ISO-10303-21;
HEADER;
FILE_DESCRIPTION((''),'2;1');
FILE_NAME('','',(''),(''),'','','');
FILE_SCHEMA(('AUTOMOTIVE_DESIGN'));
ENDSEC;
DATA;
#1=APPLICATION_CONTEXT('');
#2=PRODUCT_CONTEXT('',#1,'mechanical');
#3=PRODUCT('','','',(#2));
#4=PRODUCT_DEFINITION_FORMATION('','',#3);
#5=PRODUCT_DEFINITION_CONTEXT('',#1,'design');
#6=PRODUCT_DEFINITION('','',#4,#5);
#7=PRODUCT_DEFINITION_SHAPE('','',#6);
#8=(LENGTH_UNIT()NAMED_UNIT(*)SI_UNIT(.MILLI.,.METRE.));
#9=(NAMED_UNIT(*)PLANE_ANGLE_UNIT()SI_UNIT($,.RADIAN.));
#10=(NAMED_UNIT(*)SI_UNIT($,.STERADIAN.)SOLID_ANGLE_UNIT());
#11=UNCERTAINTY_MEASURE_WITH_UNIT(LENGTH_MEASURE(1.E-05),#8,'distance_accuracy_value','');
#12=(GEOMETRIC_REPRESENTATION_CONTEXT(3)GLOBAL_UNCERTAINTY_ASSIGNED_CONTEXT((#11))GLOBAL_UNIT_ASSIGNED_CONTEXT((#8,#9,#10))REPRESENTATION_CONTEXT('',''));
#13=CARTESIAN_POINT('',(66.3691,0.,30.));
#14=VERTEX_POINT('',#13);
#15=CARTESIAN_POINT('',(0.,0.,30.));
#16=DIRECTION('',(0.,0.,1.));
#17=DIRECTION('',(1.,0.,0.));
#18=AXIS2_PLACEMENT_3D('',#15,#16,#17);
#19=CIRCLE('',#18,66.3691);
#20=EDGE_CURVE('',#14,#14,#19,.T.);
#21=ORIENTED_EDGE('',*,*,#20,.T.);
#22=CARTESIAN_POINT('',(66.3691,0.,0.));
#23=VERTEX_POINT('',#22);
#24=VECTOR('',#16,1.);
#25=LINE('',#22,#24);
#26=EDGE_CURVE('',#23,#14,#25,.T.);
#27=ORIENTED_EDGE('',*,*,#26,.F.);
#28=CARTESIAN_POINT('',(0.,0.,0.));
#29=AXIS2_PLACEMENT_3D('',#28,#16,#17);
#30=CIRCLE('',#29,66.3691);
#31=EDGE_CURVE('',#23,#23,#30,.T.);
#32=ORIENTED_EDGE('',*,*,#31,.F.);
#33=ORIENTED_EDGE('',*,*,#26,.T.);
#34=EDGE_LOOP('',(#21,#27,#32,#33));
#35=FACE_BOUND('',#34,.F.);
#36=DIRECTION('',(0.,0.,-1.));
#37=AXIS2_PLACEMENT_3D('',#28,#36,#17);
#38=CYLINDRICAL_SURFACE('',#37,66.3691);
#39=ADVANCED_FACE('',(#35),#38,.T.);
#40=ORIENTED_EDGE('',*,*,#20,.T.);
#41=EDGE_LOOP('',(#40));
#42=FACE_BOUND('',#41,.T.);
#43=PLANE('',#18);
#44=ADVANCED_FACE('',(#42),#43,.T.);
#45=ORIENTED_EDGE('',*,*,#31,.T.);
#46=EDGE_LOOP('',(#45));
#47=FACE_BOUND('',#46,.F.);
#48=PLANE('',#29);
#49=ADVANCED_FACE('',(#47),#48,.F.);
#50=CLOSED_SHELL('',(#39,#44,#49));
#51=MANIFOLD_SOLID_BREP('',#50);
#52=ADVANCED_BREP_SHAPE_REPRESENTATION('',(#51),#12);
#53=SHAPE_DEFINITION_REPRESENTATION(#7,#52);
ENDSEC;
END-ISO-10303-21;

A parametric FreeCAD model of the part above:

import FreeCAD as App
import Part
import Sketcher

V = App.Vector
Q = App.Units.Quantity

doc = App.newDocument("Part")
body = doc.addObject("PartDesign::Body", "Body")

sketch1 = body.newObject("Sketcher::SketchObject", "Sketch")
sketch1.AttachmentSupport = (doc.getObject("XY_Plane"), [""])
sketch1.MapMode = "FlatFace"
sketch1.addGeometry(Part.Circle(V(0, 0, 0), V(0, 0, 1), 66.3691), False)
sketch1.addConstraint(Sketcher.Constraint("Coincident", 0, 3, -1, 1))
sketch1.addConstraint(Sketcher.Constraint("Diameter", 0, Q("132.7382 mm")))
pad1 = body.newObject("PartDesign::Pad", "Pad")
pad1.Profile = sketch1
pad1.Length = 30

doc.recompute()
